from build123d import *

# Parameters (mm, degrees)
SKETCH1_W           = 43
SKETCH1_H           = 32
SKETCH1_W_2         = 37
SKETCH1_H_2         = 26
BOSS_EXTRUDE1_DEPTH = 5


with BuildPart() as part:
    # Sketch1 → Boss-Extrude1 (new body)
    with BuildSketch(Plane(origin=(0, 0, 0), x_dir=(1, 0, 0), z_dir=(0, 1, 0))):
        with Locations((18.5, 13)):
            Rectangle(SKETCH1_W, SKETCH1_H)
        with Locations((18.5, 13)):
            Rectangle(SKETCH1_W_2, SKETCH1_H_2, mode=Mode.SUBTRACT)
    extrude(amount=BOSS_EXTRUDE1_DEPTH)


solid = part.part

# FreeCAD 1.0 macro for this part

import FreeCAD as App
import Part
import Sketcher

V = App.Vector
Q = App.Units.Quantity


def add_polygon(sketch, points):
    """Adds a closed chain of lines whose ends are joined by coincident constraints."""
    first, n = sketch.GeometryCount, len(points)
    for a, b in zip(points, points[1:] + points[:1]):
        sketch.addGeometry(Part.LineSegment(App.Vector(*a, 0), App.Vector(*b, 0)), False)
    for i in range(n):
        sketch.addConstraint(Sketcher.Constraint("Coincident", first + i, 2, first + (i + 1) % n, 1))

doc = App.newDocument("Part")
body = doc.addObject("PartDesign::Body", "Body")

sketch1 = body.newObject("Sketcher::SketchObject", "Sketch")
sketch1.AttachmentSupport = (doc.getObject("XZ_Plane"), [""])
sketch1.MapMode = "FlatFace"
add_polygon(sketch1, [(-3, -29), (-3, 3), (40, 3), (40, -29)])
add_polygon(sketch1, [(37, 0), (0, 0), (0, -26), (37, -26)])
sketch1.addConstraint([
    Sketcher.Constraint("Vertical", 0),
    Sketcher.Constraint("Horizontal", 1),
    Sketcher.Constraint("Vertical", 2),
    Sketcher.Constraint("Horizontal", 3),
    Sketcher.Constraint("Horizontal", 4),
    Sketcher.Constraint("Vertical", 5),
    Sketcher.Constraint("Horizontal", 6),
    Sketcher.Constraint("Vertical", 7),
    Sketcher.Constraint("Coincident", 4, 2, -1, 1),
    Sketcher.Constraint("DistanceX", 1, 1, 1, 2, Q("43 mm")),
    Sketcher.Constraint("DistanceX", 4, 2, 4, 1, Q("37 mm")),
    Sketcher.Constraint("DistanceY", 0, 1, 0, 2, Q("32 mm")),
    Sketcher.Constraint("DistanceY", 5, 2, 5, 1, Q("26 mm")),
    Sketcher.Constraint("DistanceX", 0, 2, -1, 1, Q("3 mm")),
    Sketcher.Constraint("DistanceY", -1, 1, 0, 2, Q("3 mm")),
])
pad1 = body.newObject("PartDesign::Pad", "Pad")
pad1.Profile = sketch1
pad1.Length = 5
pad1.Reversed = True

doc.recompute()
